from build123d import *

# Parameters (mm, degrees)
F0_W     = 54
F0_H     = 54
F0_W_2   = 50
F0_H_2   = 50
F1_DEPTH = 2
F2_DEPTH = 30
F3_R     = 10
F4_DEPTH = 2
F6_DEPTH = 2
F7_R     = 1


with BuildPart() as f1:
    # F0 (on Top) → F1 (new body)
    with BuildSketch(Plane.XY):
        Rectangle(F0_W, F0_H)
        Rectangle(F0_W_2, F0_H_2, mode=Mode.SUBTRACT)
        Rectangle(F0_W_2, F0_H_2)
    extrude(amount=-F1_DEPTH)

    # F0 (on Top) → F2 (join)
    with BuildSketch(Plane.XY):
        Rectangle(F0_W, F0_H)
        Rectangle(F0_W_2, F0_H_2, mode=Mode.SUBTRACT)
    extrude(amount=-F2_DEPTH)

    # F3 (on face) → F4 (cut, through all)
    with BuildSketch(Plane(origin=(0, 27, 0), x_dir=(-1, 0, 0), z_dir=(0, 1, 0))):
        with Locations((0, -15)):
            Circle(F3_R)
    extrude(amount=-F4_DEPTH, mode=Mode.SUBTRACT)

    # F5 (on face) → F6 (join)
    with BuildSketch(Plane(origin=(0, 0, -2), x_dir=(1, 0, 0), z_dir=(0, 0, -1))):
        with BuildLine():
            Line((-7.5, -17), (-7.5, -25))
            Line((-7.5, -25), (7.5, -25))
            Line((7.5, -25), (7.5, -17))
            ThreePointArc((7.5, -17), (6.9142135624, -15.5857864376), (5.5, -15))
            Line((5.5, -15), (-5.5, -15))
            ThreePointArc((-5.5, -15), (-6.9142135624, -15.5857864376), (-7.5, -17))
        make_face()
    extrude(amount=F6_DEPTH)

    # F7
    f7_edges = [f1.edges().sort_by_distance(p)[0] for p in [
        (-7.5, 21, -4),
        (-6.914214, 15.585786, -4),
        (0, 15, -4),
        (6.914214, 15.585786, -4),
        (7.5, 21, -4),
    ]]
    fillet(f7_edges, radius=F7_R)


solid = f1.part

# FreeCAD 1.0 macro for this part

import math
import FreeCAD as App
import Part
import Sketcher
Q = App.Units.Quantity


def edges_at(feature, points):
    """Names of the edges that pass closest to the given points."""
    edges = feature.Shape.Edges
    near = lambda p: min(range(len(edges)), key=lambda i: edges[i].distToShape(Part.Vertex(*p))[0])
    return sorted({f"Edge{near(p) + 1}" for p in points})


def add_polygon(sketch, points):
    """Adds a closed chain of lines whose ends are joined by coincident constraints."""
    first, n = sketch.GeometryCount, len(points)
    for a, b in zip(points, points[1:] + points[:1]):
        sketch.addGeometry(Part.LineSegment(App.Vector(*a, 0), App.Vector(*b, 0)), False)
    for i in range(n):
        sketch.addConstraint(Sketcher.Constraint("Coincident", first + i, 2, first + (i + 1) % n, 1))

doc = App.newDocument("Part")
body = doc.addObject("PartDesign::Body", "Body")

sketch1 = body.newObject("Sketcher::SketchObject", "Sketch")
sketch1.AttachmentSupport = (doc.getObject("XY_Plane"), [""])
sketch1.MapMode = "FlatFace"
add_polygon(sketch1, [(-27, 27), (-27, -27), (27, -27), (27, 27)])
sketch1.addConstraint(Sketcher.Constraint("Vertical", 0))
sketch1.addConstraint(Sketcher.Constraint("Horizontal", 1))
sketch1.addConstraint(Sketcher.Constraint("Vertical", 2))
sketch1.addConstraint(Sketcher.Constraint("Horizontal", 3))
sketch1.addConstraint(Sketcher.Constraint("Symmetric", 0, 2, 2, 2, -1, 1))
sketch1.addConstraint(Sketcher.Constraint("Equal", 3, 0))
sketch1.addConstraint(Sketcher.Constraint("DistanceX", 1, 1, 1, 2, Q("54 mm")))
pad1 = body.newObject("PartDesign::Pad", "Pad")
pad1.Profile = sketch1
pad1.Length = 2
pad1.Reversed = True

sketch2 = body.newObject("Sketcher::SketchObject", "Sketch001")
sketch2.AttachmentSupport = (doc.getObject("XY_Plane"), [""])
sketch2.MapMode = "FlatFace"
add_polygon(sketch2, [(-27, 27), (-27, -27), (27, -27), (27, 27)])
add_polygon(sketch2, [(25, -25), (-25, -25), (-25, 25), (25, 25)])
sketch2.addConstraint(Sketcher.Constraint("Vertical", 0))
sketch2.addConstraint(Sketcher.Constraint("Horizontal", 1))
sketch2.addConstraint(Sketcher.Constraint("Vertical", 2))
sketch2.addConstraint(Sketcher.Constraint("Horizontal", 3))
sketch2.addConstraint(Sketcher.Constraint("Horizontal", 4))
sketch2.addConstraint(Sketcher.Constraint("Vertical", 5))
sketch2.addConstraint(Sketcher.Constraint("Horizontal", 6))
sketch2.addConstraint(Sketcher.Constraint("Vertical", 7))
sketch2.addConstraint(Sketcher.Constraint("Symmetric", 0, 2, 2, 2, -1, 1))
sketch2.addConstraint(Sketcher.Constraint("Symmetric", 4, 2, 6, 2, -1, 1))
sketch2.addConstraint(Sketcher.Constraint("Equal", 3, 0))
sketch2.addConstraint(Sketcher.Constraint("Equal", 6, 5))
sketch2.addConstraint(Sketcher.Constraint("DistanceX", 1, 1, 1, 2, Q("54 mm")))
sketch2.addConstraint(Sketcher.Constraint("DistanceX", 4, 2, 4, 1, Q("50 mm")))
pad2 = body.newObject("PartDesign::Pad", "Pad001")
pad2.Profile = sketch2
pad2.Length = 30
pad2.Reversed = True

sketch3 = body.newObject("Sketcher::SketchObject", "Sketch002")
sketch3.AttachmentSupport = (doc.getObject("XZ_Plane"), [""])
sketch3.MapMode = "FlatFace"
sketch3.AttachmentOffset = App.Placement(App.Vector(0, 0, -27), App.Rotation())
sketch3.addGeometry(Part.Circle(App.Vector(0, -15, 0), App.Vector(0, 0, 1), 10), False)
sketch3.addConstraint(Sketcher.Constraint("PointOnObject", 0, 3, -2))
sketch3.addConstraint(Sketcher.Constraint("Diameter", 0, Q("20 mm")))
sketch3.addConstraint(Sketcher.Constraint("DistanceY", 0, 3, -1, 1, Q("15 mm")))
pocket1 = body.newObject("PartDesign::Pocket", "Pocket")
pocket1.Profile = sketch3
pocket1.Length = 2
pocket1.Reversed = True

sketch4 = body.newObject("Sketcher::SketchObject", "Sketch003")
sketch4.AttachmentSupport = (doc.getObject("XY_Plane"), [""])
sketch4.MapMode = "FlatFace"
sketch4.AttachmentOffset = App.Placement(App.Vector(0, 0, -2), App.Rotation())
sketch4.addGeometry(Part.LineSegment(App.Vector(-7.5, 17, 0), App.Vector(-7.5, 25, 0)), False)
sketch4.addGeometry(Part.LineSegment(App.Vector(-7.5, 25, 0), App.Vector(7.5, 25, 0)), False)
sketch4.addGeometry(Part.LineSegment(App.Vector(7.5, 25, 0), App.Vector(7.5, 17, 0)), False)
sketch4.addGeometry(Part.ArcOfCircle(Part.Circle(App.Vector(5.5, 17, 0), App.Vector(0, 0, 1), 2), math.radians(-90), math.radians(0)), False)
sketch4.addGeometry(Part.LineSegment(App.Vector(5.5, 15, 0), App.Vector(-5.5, 15, 0)), False)
sketch4.addGeometry(Part.ArcOfCircle(Part.Circle(App.Vector(-5.5, 17, 0), App.Vector(0, 0, 1), 2), math.radians(180), math.radians(270)), False)
sketch4.addConstraint(Sketcher.Constraint("Coincident", 0, 2, 1, 1))
sketch4.addConstraint(Sketcher.Constraint("Coincident", 1, 2, 2, 1))
sketch4.addConstraint(Sketcher.Constraint("Tangent", 2, 2, 3, 2))
sketch4.addConstraint(Sketcher.Constraint("Tangent", 3, 1, 4, 1))
sketch4.addConstraint(Sketcher.Constraint("Tangent", 4, 2, 5, 2))
sketch4.addConstraint(Sketcher.Constraint("Tangent", 5, 1, 0, 1))
sketch4.addConstraint(Sketcher.Constraint("Vertical", 0))
sketch4.addConstraint(Sketcher.Constraint("Horizontal", 1))
sketch4.addConstraint(Sketcher.Constraint("Vertical", 2))
sketch4.addConstraint(Sketcher.Constraint("Horizontal", 4))
sketch4.addConstraint(Sketcher.Constraint("Equal", 3, 5))
sketch4.addConstraint(Sketcher.Constraint("Radius", 3, Q("2 mm")))
sketch4.addConstraint(Sketcher.Constraint("DistanceX", 1, 1, 1, 2, Q("15 mm")))
sketch4.addConstraint(Sketcher.Constraint("DistanceY", 0, 1, 0, 2, Q("8 mm")))
sketch4.addConstraint(Sketcher.Constraint("DistanceY", -1, 1, 3, 3, Q("17 mm")))
sketch4.addConstraint(Sketcher.Constraint("DistanceX", -1, 1, 3, 3, Q("5.5 mm")))
pad3 = body.newObject("PartDesign::Pad", "Pad002")
pad3.Profile = sketch4
pad3.Length = 2
pad3.Reversed = True
doc.recompute()

fillet = body.newObject("PartDesign::Fillet", "Fillet")
fillet.Base = (pad3, edges_at(pad3, [
    (-7.5, 21, -4),
    (-6.914, 15.586, -4),
    (0, 15, -4),
    (6.914, 15.586, -4),
    (7.5, 21, -4),
]))
fillet.Radius = 1

doc.recompute()
